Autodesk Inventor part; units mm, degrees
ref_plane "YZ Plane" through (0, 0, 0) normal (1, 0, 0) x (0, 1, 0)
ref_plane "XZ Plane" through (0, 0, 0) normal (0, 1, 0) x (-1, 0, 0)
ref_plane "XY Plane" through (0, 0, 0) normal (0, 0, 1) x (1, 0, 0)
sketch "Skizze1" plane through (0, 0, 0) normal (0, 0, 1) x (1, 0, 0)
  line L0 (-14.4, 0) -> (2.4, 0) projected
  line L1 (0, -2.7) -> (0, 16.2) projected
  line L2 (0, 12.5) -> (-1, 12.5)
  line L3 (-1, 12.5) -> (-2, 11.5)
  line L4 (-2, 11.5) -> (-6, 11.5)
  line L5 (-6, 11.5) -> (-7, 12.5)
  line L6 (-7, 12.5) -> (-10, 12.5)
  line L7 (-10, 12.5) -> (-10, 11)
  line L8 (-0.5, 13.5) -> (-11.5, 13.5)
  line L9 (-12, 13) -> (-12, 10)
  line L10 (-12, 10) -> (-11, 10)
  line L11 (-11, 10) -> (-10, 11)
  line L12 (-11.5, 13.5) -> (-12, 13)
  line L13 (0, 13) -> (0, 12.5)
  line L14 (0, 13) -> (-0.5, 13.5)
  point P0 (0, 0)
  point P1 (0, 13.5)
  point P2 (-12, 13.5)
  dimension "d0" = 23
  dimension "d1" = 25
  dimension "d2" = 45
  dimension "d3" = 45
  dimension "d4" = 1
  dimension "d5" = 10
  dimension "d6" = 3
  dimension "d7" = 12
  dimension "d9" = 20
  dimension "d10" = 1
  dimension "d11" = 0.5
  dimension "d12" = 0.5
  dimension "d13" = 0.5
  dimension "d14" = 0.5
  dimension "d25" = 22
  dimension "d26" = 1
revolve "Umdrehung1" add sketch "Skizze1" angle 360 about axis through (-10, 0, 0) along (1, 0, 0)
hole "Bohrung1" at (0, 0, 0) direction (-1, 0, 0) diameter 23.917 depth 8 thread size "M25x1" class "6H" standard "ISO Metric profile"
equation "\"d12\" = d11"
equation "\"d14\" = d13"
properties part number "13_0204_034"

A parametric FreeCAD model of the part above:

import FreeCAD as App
import Part
import Sketcher
from FreeCAD import Vector
Q = App.Units.Quantity


def add_polygon(sketch, points):
    """Adds a closed chain of lines whose ends are joined by coincident constraints."""
    first, n = sketch.GeometryCount, len(points)
    for a, b in zip(points, points[1:] + points[:1]):
        sketch.addGeometry(Part.LineSegment(App.Vector(*a, 0), App.Vector(*b, 0)), False)
    for i in range(n):
        sketch.addConstraint(Sketcher.Constraint("Coincident", first + i, 2, first + (i + 1) % n, 1))

doc = App.newDocument("Part")
body = doc.addObject("PartDesign::Body", "Body")

# Sketch on XY plane
sketch1 = body.newObject("Sketcher::SketchObject", "Sketch")
sketch1.AttachmentSupport = (doc.getObject("XY_Plane"), [""])
sketch1.MapMode = "FlatFace"
add_polygon(sketch1, [(-1, 12.5), (0, 12.5), (0, 13), (-0.5, 13.5), (-11.5, 13.5), (-12, 13), (-12, 10), (-11, 10), (-10, 11), (-10, 12.5), (-7, 12.5), (-6, 11.5), (-2, 11.5)])  # lines 0-12
sketch1.addConstraint([
    Sketcher.Constraint("Horizontal", 0),
    Sketcher.Constraint("Vertical", 1),
    Sketcher.Constraint("Horizontal", 3),
    Sketcher.Constraint("Vertical", 5),
    Sketcher.Constraint("Horizontal", 6),
    Sketcher.Constraint("Vertical", 8),
    Sketcher.Constraint("Horizontal", 9),
    Sketcher.Constraint("Horizontal", 11),
    Sketcher.Constraint("PointOnObject", 0, 2, -2),
    Sketcher.Constraint("Perpendicular", 2, 4),
    Sketcher.Constraint("Parallel", 4, 7),
    Sketcher.Constraint("Perpendicular", 7, 10),
    Sketcher.Constraint("Perpendicular", 10, 12),
    Sketcher.Constraint("Horizontal", 1, 2, 4, 2),
    Sketcher.Constraint("Horizontal", 0, 2, 8, 2),
    Sketcher.Constraint("Equal", 0, 6),
    Sketcher.Constraint("Equal", 9, 5),
    Sketcher.Constraint("Equal", 2, 4),
    Sketcher.Constraint("Equal", 7, 10),
    Sketcher.Constraint("DistanceX", 0, 1, 0, 2, Q("1 mm")),
    Sketcher.Constraint("DistanceX", 9, 1, 9, 2, Q("3 mm")),
    Sketcher.Constraint("DistanceY", 1, 1, 1, 2, Q("0.5 mm")),
    Sketcher.Constraint("DistanceX", 4, 2, -1, 1, Q("12 mm")),
    Sketcher.Constraint("DistanceY", -1, 1, 5, 2, Q("10 mm")),
    Sketcher.Constraint("DistanceX", 7, 2, -1, 1, Q("10 mm")),
    Sketcher.Constraint("DistanceY", 0, 2, 2, 2, Q("1 mm")),
])
revolution = body.newObject("PartDesign::Revolution", "Revolution")
revolution.Profile = sketch1
revolution.ReferenceAxis = (sketch1, ["H_Axis"])
revolution.Angle = 360

# Sketch on YZ plane
sketch2 = body.newObject("Sketcher::SketchObject", "Sketch001")
sketch2.AttachmentSupport = (doc.getObject("YZ_Plane"), [""])
sketch2.MapMode = "FlatFace"
sketch2.addGeometry(Part.Circle(Vector(0, 0, 0), Vector(0, 0, 1), 11.9585), False)
sketch2.addConstraint([
    Sketcher.Constraint("Coincident", 0, 3, -1, 1),
    Sketcher.Constraint("Diameter", 0, Q("23.917 mm")),
])
doc.recompute()
hole = body.newObject("PartDesign::Hole", "Hole")
hole.Profile = sketch2
hole.ThreadType = "None"
hole.Diameter = 23.917
hole.DepthType = "Dimension"
hole.Depth = 8
hole.DrillPoint = "Flat"

doc.recompute()
